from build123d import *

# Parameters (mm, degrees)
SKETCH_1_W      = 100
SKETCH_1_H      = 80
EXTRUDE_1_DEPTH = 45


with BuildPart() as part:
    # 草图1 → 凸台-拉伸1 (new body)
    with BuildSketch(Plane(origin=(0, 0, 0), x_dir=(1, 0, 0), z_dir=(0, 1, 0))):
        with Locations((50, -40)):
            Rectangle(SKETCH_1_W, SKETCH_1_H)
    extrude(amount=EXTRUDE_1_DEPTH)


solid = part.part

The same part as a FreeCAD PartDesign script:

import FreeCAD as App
import Part
import Sketcher
Q = App.Units.Quantity

doc = App.newDocument("Part")
body = doc.addObject("PartDesign::Body", "Body")

# Sketch on XZ plane
sketch1 = doc.addObject("Sketcher::SketchObject", "Sketch")
body.addObject(sketch1)
sketch1.AttachmentSupport = (doc.XZ_Plane, [""])
sketch1.MapMode = "FlatFace"
sketch1.addGeometry([
    Part.LineSegment(App.Vector(0, 0, 0), App.Vector(0, 80, 0)),
    Part.LineSegment(App.Vector(0, 80, 0), App.Vector(100, 80, 0)),
    Part.LineSegment(App.Vector(100, 80, 0), App.Vector(100, 0, 0)),
    Part.LineSegment(App.Vector(100, 0, 0), App.Vector(0, 0, 0)),
], False)
sketch1.addConstraint([
    Sketcher.Constraint("Coincident", 0, 2, 1, 1),
    Sketcher.Constraint("Coincident", 1, 2, 2, 1),
    Sketcher.Constraint("Coincident", 2, 2, 3, 1),
    Sketcher.Constraint("Coincident", 3, 2, 0, 1),
    Sketcher.Constraint("Vertical", 0),
    Sketcher.Constraint("Horizontal", 1),
    Sketcher.Constraint("Vertical", 2),
    Sketcher.Constraint("Horizontal", 3),
    Sketcher.Constraint("Coincident", 3, 2, -1, 1),
    Sketcher.Constraint("DistanceX", 1, 1, 1, 2, Q("100 mm")),
    Sketcher.Constraint("DistanceY", 0, 1, 0, 2, Q("80 mm")),
])
pad1 = doc.addObject("PartDesign::Pad", "Pad")
body.addObject(pad1)
pad1.Profile = sketch1
pad1.Length = 45
pad1.Reversed = True

doc.recompute()
